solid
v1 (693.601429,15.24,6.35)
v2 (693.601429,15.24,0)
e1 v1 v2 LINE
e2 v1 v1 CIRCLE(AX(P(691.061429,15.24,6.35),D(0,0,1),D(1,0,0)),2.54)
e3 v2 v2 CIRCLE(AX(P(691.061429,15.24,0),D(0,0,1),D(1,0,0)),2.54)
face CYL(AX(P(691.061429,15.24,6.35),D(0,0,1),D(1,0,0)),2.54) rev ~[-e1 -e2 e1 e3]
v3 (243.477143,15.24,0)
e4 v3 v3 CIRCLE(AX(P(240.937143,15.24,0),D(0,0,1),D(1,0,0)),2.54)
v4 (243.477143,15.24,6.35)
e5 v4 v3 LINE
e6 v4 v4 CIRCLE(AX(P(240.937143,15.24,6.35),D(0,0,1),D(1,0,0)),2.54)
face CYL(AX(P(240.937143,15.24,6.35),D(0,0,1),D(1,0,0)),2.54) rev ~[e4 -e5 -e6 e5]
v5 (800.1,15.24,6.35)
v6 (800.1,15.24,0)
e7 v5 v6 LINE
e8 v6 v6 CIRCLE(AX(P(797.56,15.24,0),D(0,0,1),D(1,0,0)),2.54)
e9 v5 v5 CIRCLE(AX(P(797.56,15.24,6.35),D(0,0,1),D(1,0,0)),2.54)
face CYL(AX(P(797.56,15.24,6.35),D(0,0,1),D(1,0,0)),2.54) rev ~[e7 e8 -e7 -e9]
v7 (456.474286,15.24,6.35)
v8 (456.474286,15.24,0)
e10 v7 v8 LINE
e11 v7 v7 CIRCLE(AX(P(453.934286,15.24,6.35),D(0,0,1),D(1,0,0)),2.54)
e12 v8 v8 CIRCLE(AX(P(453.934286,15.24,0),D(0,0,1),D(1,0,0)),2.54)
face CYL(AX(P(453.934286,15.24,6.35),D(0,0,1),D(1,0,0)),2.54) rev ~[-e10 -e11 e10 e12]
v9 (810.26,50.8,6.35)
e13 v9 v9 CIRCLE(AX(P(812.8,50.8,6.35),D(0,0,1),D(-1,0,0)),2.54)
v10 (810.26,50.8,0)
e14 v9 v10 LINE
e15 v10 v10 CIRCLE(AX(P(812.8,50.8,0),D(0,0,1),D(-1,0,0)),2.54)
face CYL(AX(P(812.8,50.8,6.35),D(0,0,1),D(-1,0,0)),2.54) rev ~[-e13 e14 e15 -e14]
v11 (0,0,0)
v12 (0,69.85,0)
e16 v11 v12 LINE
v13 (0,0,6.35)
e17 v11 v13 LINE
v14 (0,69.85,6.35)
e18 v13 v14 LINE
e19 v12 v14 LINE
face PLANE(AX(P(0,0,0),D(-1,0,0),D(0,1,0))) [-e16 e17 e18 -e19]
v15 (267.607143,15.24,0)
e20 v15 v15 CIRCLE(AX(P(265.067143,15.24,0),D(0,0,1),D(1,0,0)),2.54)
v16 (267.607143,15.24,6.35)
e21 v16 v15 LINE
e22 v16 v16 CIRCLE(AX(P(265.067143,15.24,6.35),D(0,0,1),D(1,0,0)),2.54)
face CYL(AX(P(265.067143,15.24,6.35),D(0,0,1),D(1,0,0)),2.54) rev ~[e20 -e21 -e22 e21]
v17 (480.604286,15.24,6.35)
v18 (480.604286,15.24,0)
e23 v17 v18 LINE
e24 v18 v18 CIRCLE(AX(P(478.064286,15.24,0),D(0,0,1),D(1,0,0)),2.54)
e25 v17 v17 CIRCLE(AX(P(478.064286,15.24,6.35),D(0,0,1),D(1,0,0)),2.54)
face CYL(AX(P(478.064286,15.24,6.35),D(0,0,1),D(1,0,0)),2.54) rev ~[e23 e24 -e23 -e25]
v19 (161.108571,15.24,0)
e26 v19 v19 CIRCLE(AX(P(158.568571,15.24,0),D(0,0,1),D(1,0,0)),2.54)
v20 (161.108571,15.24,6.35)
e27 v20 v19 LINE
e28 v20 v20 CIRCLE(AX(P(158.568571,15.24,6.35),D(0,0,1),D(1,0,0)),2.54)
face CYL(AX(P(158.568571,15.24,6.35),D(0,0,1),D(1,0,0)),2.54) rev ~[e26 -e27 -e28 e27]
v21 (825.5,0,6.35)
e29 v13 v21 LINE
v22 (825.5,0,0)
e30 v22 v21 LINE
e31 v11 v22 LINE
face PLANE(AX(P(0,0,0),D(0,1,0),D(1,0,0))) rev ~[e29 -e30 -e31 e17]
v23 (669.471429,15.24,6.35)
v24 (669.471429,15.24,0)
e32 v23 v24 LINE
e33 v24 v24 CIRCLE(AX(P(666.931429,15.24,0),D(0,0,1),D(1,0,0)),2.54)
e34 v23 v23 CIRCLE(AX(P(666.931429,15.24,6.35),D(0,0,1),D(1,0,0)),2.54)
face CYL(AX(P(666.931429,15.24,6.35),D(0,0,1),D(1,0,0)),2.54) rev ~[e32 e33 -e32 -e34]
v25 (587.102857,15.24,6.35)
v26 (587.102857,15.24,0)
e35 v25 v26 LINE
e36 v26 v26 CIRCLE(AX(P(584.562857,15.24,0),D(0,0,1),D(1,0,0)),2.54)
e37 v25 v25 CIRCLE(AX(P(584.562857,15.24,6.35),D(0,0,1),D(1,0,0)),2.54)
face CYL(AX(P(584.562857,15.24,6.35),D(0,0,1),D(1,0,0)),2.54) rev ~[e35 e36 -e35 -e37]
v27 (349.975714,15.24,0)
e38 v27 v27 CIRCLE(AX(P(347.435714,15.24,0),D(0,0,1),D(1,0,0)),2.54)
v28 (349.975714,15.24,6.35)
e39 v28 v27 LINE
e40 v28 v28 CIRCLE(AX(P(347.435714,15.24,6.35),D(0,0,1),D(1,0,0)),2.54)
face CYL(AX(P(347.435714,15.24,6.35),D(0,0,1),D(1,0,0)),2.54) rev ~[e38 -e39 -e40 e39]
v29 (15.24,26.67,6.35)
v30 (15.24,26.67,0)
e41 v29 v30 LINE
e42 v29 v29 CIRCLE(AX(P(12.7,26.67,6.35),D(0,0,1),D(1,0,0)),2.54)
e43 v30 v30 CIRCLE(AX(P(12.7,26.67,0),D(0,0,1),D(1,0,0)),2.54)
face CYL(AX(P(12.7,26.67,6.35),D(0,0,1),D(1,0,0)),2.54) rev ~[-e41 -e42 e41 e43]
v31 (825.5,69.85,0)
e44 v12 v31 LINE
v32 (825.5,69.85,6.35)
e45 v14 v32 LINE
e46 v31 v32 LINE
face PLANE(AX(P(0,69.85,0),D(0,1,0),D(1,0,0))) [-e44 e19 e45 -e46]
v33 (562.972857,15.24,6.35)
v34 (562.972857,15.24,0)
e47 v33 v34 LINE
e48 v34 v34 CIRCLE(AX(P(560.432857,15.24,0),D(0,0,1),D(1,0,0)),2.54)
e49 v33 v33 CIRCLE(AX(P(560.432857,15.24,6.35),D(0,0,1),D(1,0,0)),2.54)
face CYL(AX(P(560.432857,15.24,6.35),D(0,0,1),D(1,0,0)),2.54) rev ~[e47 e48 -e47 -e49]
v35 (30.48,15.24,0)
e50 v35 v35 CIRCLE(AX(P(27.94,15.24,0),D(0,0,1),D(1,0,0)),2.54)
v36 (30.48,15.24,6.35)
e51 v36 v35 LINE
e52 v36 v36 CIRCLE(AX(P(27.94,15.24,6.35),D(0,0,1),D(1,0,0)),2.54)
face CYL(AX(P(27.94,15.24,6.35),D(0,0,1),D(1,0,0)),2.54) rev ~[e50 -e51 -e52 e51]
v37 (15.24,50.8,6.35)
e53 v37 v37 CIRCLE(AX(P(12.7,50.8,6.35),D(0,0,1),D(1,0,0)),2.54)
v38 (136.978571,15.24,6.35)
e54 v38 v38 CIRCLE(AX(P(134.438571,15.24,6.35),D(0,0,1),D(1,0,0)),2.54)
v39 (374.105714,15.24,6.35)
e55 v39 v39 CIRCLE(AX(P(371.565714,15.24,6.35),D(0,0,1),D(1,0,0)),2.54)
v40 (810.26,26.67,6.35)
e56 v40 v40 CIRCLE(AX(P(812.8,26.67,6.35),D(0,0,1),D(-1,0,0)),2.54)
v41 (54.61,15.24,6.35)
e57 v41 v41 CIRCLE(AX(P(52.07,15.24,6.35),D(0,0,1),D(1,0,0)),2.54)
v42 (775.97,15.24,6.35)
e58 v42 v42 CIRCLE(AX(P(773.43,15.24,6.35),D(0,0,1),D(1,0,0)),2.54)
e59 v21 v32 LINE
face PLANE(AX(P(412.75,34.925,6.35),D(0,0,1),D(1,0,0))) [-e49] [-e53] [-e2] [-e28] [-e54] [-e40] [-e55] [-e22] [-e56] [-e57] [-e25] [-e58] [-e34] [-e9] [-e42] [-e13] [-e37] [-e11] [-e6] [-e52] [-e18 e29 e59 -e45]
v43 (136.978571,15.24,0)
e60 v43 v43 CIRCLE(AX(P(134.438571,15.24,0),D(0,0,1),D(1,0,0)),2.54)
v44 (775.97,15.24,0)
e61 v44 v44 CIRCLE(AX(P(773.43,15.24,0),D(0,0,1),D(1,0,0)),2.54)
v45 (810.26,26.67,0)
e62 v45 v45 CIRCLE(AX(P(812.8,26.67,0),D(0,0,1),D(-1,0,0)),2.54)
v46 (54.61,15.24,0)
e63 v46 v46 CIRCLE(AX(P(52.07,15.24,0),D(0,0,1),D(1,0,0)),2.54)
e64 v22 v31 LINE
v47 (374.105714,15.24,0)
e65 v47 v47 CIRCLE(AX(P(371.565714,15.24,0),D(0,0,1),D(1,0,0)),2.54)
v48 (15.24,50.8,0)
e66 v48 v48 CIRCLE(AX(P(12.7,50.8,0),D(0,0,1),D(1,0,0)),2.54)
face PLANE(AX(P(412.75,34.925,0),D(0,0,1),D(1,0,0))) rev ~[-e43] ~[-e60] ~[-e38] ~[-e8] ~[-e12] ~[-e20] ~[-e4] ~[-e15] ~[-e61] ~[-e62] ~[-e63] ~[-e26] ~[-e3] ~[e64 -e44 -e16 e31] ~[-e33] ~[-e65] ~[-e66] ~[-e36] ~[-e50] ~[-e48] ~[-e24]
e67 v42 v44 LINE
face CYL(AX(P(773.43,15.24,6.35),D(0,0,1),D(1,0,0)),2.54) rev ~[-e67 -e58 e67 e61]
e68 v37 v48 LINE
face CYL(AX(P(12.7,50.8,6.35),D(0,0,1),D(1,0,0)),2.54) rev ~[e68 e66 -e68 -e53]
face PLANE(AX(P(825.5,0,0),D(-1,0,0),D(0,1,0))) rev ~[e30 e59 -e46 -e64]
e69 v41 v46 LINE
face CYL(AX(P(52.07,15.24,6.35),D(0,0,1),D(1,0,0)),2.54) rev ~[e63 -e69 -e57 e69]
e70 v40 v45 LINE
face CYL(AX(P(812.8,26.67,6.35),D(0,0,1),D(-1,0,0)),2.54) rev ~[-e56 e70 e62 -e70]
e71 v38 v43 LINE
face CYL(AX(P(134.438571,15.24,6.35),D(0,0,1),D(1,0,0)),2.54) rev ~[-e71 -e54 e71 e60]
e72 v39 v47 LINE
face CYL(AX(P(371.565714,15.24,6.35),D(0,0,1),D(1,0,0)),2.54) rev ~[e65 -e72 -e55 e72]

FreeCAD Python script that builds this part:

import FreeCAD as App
import Part
import Sketcher
Q = App.Units.Quantity


def add_polygon(sketch, points):
    """Adds a closed chain of lines whose ends are joined by coincident constraints."""
    first, n = sketch.GeometryCount, len(points)
    for a, b in zip(points, points[1:] + points[:1]):
        sketch.addGeometry(Part.LineSegment(App.Vector(*a, 0), App.Vector(*b, 0)), False)
    for i in range(n):
        sketch.addConstraint(Sketcher.Constraint("Coincident", first + i, 2, first + (i + 1) % n, 1))

doc = App.newDocument("Part")
body = doc.addObject("PartDesign::Body", "Body")

sketch1 = doc.addObject("Sketcher::SketchObject", "Sketch")
body.addObject(sketch1)
sketch1.AttachmentSupport = (doc.XY_Plane, [""])
sketch1.MapMode = "FlatFace"
add_polygon(sketch1, [(0, 69.85), (0, 0), (825.5, 0), (825.5, 69.85)])
sketch1.addConstraint(Sketcher.Constraint("Vertical", 0))
sketch1.addConstraint(Sketcher.Constraint("Horizontal", 1))
sketch1.addConstraint(Sketcher.Constraint("Vertical", 2))
sketch1.addConstraint(Sketcher.Constraint("Horizontal", 3))
sketch1.addConstraint(Sketcher.Constraint("Coincident", 0, 2, -1, 1))
sketch1.addConstraint(Sketcher.Constraint("DistanceX", 1, 1, 1, 2, Q("32.5 in")))
sketch1.addConstraint(Sketcher.Constraint("DistanceY", 0, 2, 0, 1, Q("2.75 in")))
pad1 = doc.addObject("PartDesign::Pad", "Pad")
body.addObject(pad1)
pad1.Profile = sketch1
pad1.Length = Q("0.25 in")

sketch2 = doc.addObject("Sketcher::SketchObject", "Sketch001")
body.addObject(sketch2)
sketch2.AttachmentSupport = (doc.XY_Plane, [""])
sketch2.MapMode = "FlatFace"
sketch2.AttachmentOffset = App.Placement(App.Vector(0, 0, 0.25 * 25.4), App.Rotation())
sketch2.addGeometry(Part.Circle(App.Vector(27.94, 15.24, 0), App.Vector(0, 0, 1), 2.54), False)
sketch2.addGeometry(Part.Circle(App.Vector(52.07, 15.24, 0), App.Vector(0, 0, 1), 2.54), False)
sketch2.addConstraint(Sketcher.Constraint("Equal", 0, 1))
sketch2.addConstraint(Sketcher.Constraint("Horizontal", 0, 3, 1, 3))
sketch2.addConstraint(Sketcher.Constraint("Diameter", 0, Q("0.2 in")))
sketch2.addConstraint(Sketcher.Constraint("DistanceX", -1, 1, 0, 3, Q("1.1 in")))
sketch2.addConstraint(Sketcher.Constraint("DistanceY", -1, 1, 0, 3, Q("0.6 in")))
sketch2.addConstraint(Sketcher.Constraint("DistanceX", -1, 1, 1, 3, Q("2.05 in")))
pocket1 = doc.addObject("PartDesign::Pocket", "Pocket")
body.addObject(pocket1)
pocket1.Profile = sketch2
pocket1.Length = Q("0.25 in")

sketch3 = doc.addObject("Sketcher::SketchObject", "Sketch002")
body.addObject(sketch3)
sketch3.AttachmentSupport = (doc.XY_Plane, [""])
sketch3.MapMode = "FlatFace"
sketch3.AttachmentOffset = App.Placement(App.Vector(0, 0, 0.25 * 25.4), App.Rotation())
sketch3.addGeometry(Part.Circle(App.Vector(12.7, 26.67, 0), App.Vector(0, 0, 1), 2.54), False)
sketch3.addGeometry(Part.Circle(App.Vector(12.7, 50.8, 0), App.Vector(0, 0, 1), 2.54), False)
sketch3.addGeometry(Part.Circle(App.Vector(812.8, 26.67, 0), App.Vector(0, 0, 1), 2.54), False)
sketch3.addGeometry(Part.Circle(App.Vector(812.8, 50.8, 0), App.Vector(0, 0, 1), 2.54), False)
sketch3.addConstraint(Sketcher.Constraint("Equal", 0, 1))
sketch3.addConstraint(Sketcher.Constraint("Equal", 1, 2))
sketch3.addConstraint(Sketcher.Constraint("Equal", 2, 3))
sketch3.addConstraint(Sketcher.Constraint("Horizontal", 0, 3, 2, 3))
sketch3.addConstraint(Sketcher.Constraint("Horizontal", 1, 3, 3, 3))
sketch3.addConstraint(Sketcher.Constraint("Vertical", 0, 3, 1, 3))
sketch3.addConstraint(Sketcher.Constraint("Vertical", 2, 3, 3, 3))
sketch3.addConstraint(Sketcher.Constraint("Diameter", 0, Q("0.2 in")))
sketch3.addConstraint(Sketcher.Constraint("DistanceY", -1, 1, 1, 3, Q("2 in")))
sketch3.addConstraint(Sketcher.Constraint("DistanceX", -1, 1, 2, 3, Q("32 in")))
sketch3.addConstraint(Sketcher.Constraint("DistanceX", -1, 1, 0, 3, Q("0.5 in")))
sketch3.addConstraint(Sketcher.Constraint("DistanceY", -1, 1, 0, 3, Q("1.05 in")))
pocket2 = doc.addObject("PartDesign::Pocket", "Pocket001")
body.addObject(pocket2)
pocket2.Profile = sketch3
pocket2.Length = Q("0.25 in")
doc.recompute()

linearpattern = doc.addObject("PartDesign::LinearPattern", "LinearPattern")
body.addObject(linearpattern)
linearpattern.Originals = [pocket1]
linearpattern.Direction = (doc.X_Axis, [""])
linearpattern.Mode = "offset"
linearpattern.Offset = 106.498571
linearpattern.Occurrences = 8
body.Tip = linearpattern

doc.recompute()
